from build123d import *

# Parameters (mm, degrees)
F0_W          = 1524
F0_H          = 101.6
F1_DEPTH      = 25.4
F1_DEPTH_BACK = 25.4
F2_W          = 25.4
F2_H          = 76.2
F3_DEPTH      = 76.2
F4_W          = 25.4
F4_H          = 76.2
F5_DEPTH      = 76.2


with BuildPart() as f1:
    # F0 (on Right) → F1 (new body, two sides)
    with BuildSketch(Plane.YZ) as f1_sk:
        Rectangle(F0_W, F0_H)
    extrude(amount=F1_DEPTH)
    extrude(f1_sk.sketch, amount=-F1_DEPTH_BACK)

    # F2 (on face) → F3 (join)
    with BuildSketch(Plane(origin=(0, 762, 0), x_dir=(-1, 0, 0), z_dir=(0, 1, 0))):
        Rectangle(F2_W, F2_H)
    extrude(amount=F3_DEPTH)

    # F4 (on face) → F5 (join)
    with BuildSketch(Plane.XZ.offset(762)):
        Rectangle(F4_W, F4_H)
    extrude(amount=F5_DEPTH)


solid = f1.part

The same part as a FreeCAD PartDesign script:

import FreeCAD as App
import Part
import Sketcher

V = App.Vector
Q = App.Units.Quantity


def add_polygon(sketch, points):
    """Adds a closed chain of lines whose ends are joined by coincident constraints."""
    first, n = sketch.GeometryCount, len(points)
    for a, b in zip(points, points[1:] + points[:1]):
        sketch.addGeometry(Part.LineSegment(App.Vector(*a, 0), App.Vector(*b, 0)), False)
    for i in range(n):
        sketch.addConstraint(Sketcher.Constraint("Coincident", first + i, 2, first + (i + 1) % n, 1))

doc = App.newDocument("Part")
body = doc.addObject("PartDesign::Body", "Body")

# Sketch on YZ plane
sketch1 = doc.addObject("Sketcher::SketchObject", "Sketch")
body.addObject(sketch1)
sketch1.AttachmentSupport = (doc.YZ_Plane, [""])
sketch1.MapMode = "FlatFace"
add_polygon(sketch1, [(-762, 51), (-762, -51), (762, -51), (762, 51)])  # lines 0-3
sketch1.addConstraint([
    Sketcher.Constraint("Vertical", 0),
    Sketcher.Constraint("Horizontal", 1),
    Sketcher.Constraint("Vertical", 2),
    Sketcher.Constraint("Horizontal", 3),
    Sketcher.Constraint("Symmetric", 0, 2, 2, 2, -1, 1),
    Sketcher.Constraint("DistanceX", 1, 1, 1, 2, Q("60 in")),
    Sketcher.Constraint("DistanceY", 0, 2, 0, 1, Q("4 in")),
])
pad1 = doc.addObject("PartDesign::Pad", "Pad")
body.addObject(pad1)
pad1.Profile = sketch1
pad1.Type = "TwoLengths"
pad1.Length = Q("1 in")
pad1.Length2 = Q("1 in")

# Sketch on XZ plane
sketch2 = doc.addObject("Sketcher::SketchObject", "Sketch001")
body.addObject(sketch2)
sketch2.AttachmentSupport = (doc.XZ_Plane, [""])
sketch2.MapMode = "FlatFace"
sketch2.AttachmentOffset = App.Placement(V(0, 0, -30 * 25.4), App.Rotation())
add_polygon(sketch2, [(13, 38), (13, -38), (-13, -38), (-13, 38)])  # lines 0-3
sketch2.addConstraint([
    Sketcher.Constraint("Vertical", 0),
    Sketcher.Constraint("Horizontal", 1),
    Sketcher.Constraint("Vertical", 2),
    Sketcher.Constraint("Horizontal", 3),
    Sketcher.Constraint("Symmetric", 0, 2, 2, 2, -1, 1),
    Sketcher.Constraint("DistanceX", 1, 2, 1, 1, Q("1 in")),
    Sketcher.Constraint("DistanceY", 0, 2, 0, 1, Q("3 in")),
])
pad2 = doc.addObject("PartDesign::Pad", "Pad001")
body.addObject(pad2)
pad2.Profile = sketch2
pad2.Length = Q("3 in")
pad2.Reversed = True

# Sketch on XZ plane
sketch3 = doc.addObject("Sketcher::SketchObject", "Sketch002")
body.addObject(sketch3)
sketch3.AttachmentSupport = (doc.XZ_Plane, [""])
sketch3.MapMode = "FlatFace"
sketch3.AttachmentOffset = App.Placement(V(0, 0, 30 * 25.4), App.Rotation())
add_polygon(sketch3, [(-13, 38), (-13, -38), (13, -38), (13, 38)])  # lines 0-3
sketch3.addConstraint([
    Sketcher.Constraint("Vertical", 0),
    Sketcher.Constraint("Horizontal", 1),
    Sketcher.Constraint("Vertical", 2),
    Sketcher.Constraint("Horizontal", 3),
    Sketcher.Constraint("Symmetric", 0, 2, 2, 2, -1, 1),
    Sketcher.Constraint("DistanceX", 1, 1, 1, 2, Q("1 in")),
    Sketcher.Constraint("DistanceY", 0, 2, 0, 1, Q("3 in")),
])
pad3 = doc.addObject("PartDesign::Pad", "Pad002")
body.addObject(pad3)
pad3.Profile = sketch3
pad3.Length = Q("3 in")

doc.recompute()
